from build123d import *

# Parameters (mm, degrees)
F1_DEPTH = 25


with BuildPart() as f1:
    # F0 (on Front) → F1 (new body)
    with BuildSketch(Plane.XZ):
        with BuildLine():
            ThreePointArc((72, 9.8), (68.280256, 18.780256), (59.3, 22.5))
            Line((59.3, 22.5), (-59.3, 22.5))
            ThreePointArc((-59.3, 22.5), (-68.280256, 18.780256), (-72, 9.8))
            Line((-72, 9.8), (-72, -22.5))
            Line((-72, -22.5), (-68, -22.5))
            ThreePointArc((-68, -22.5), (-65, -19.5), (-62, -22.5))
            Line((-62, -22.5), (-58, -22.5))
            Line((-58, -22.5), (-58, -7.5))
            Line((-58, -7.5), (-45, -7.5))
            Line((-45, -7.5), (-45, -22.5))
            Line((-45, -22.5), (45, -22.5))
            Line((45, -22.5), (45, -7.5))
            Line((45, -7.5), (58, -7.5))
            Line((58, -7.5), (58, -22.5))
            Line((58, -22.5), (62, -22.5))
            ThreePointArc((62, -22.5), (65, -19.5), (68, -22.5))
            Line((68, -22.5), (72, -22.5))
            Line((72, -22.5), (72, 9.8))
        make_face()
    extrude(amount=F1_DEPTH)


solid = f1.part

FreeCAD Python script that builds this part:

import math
import FreeCAD as App
import Part
import Sketcher

V = App.Vector
Q = App.Units.Quantity

doc = App.newDocument("Part")
body = doc.addObject("PartDesign::Body", "Body")

# Sketch on XZ plane
sketch1 = doc.addObject("Sketcher::SketchObject", "Sketch")
body.addObject(sketch1)
sketch1.AttachmentSupport = (doc.XZ_Plane, [""])
sketch1.MapMode = "FlatFace"
sketch1.addGeometry([
    Part.ArcOfCircle(Part.Circle(V(59.3, 9.8, 0), V(0, 0, 1), 12.7), math.radians(0.000002), math.radians(89.999998)),  # 0
    Part.LineSegment(V(59.3, 22.5, 0), V(-59.3, 22.5, 0)),  # 1
    Part.ArcOfCircle(Part.Circle(V(-59.3, 9.8, 0), V(0, 0, 1), 12.7), math.radians(90.000002), math.radians(179.999998)),  # 2
    Part.LineSegment(V(-72, 9.8, 0), V(-72, -22.5, 0)),  # 3
    Part.LineSegment(V(-72, -22.5, 0), V(-68, -22.5, 0)),  # 4
    Part.ArcOfCircle(Part.Circle(V(-65, -22.5, 0), V(0, 0, 1), 3), math.radians(0), math.radians(180)),  # 5
    Part.LineSegment(V(-62, -22.5, 0), V(-58, -22.5, 0)),  # 6
    Part.LineSegment(V(-58, -22.5, 0), V(-58, -7.5, 0)),  # 7
    Part.LineSegment(V(-58, -7.5, 0), V(-45, -7.5, 0)),  # 8
    Part.LineSegment(V(-45, -7.5, 0), V(-45, -22.5, 0)),  # 9
    Part.LineSegment(V(-45, -22.5, 0), V(45, -22.5, 0)),  # 10
    Part.LineSegment(V(45, -22.5, 0), V(45, -7.5, 0)),  # 11
    Part.LineSegment(V(45, -7.5, 0), V(58, -7.5, 0)),  # 12
    Part.LineSegment(V(58, -7.5, 0), V(58, -22.5, 0)),  # 13
    Part.LineSegment(V(58, -22.5, 0), V(62, -22.5, 0)),  # 14
    Part.ArcOfCircle(Part.Circle(V(65, -22.5, 0), V(0, 0, 1), 3), math.radians(0), math.radians(180)),  # 15
    Part.LineSegment(V(68, -22.5, 0), V(72, -22.5, 0)),  # 16
    Part.LineSegment(V(72, -22.5, 0), V(72, 9.8, 0)),  # 17
], False)
sketch1.addConstraint([
    Sketcher.Constraint("Tangent", 0, 2, 1, 1),
    Sketcher.Constraint("Tangent", 1, 2, 2, 1),
    Sketcher.Constraint("Tangent", 2, 2, 3, 1),
    Sketcher.Constraint("Coincident", 3, 2, 4, 1),
    Sketcher.Constraint("Coincident", 4, 2, 5, 2),
    Sketcher.Constraint("Coincident", 5, 1, 6, 1),
    Sketcher.Constraint("Coincident", 6, 2, 7, 1),
    Sketcher.Constraint("Coincident", 7, 2, 8, 1),
    Sketcher.Constraint("Coincident", 8, 2, 9, 1),
    Sketcher.Constraint("Coincident", 9, 2, 10, 1),
    Sketcher.Constraint("Coincident", 10, 2, 11, 1),
    Sketcher.Constraint("Coincident", 11, 2, 12, 1),
    Sketcher.Constraint("Coincident", 12, 2, 13, 1),
    Sketcher.Constraint("Coincident", 13, 2, 14, 1),
    Sketcher.Constraint("Coincident", 14, 2, 15, 2),
    Sketcher.Constraint("Coincident", 15, 1, 16, 1),
    Sketcher.Constraint("Coincident", 16, 2, 17, 1),
    Sketcher.Constraint("Tangent", 17, 2, 0, 1),
    Sketcher.Constraint("Horizontal", 1),
    Sketcher.Constraint("Vertical", 3),
    Sketcher.Constraint("Horizontal", 4),
    Sketcher.Constraint("Horizontal", 6),
    Sketcher.Constraint("Vertical", 7),
    Sketcher.Constraint("Horizontal", 8),
    Sketcher.Constraint("Vertical", 9),
    Sketcher.Constraint("Horizontal", 10),
    Sketcher.Constraint("Vertical", 11),
    Sketcher.Constraint("Horizontal", 12),
    Sketcher.Constraint("Vertical", 13),
    Sketcher.Constraint("Horizontal", 14),
    Sketcher.Constraint("Horizontal", 16),
    Sketcher.Constraint("Vertical", 17),
    Sketcher.Constraint("Equal", 0, 2),
    Sketcher.Constraint("Equal", 5, 15),
    Sketcher.Constraint("Symmetric", 5, 3, 15, 3, -2),
    Sketcher.Constraint("Symmetric", 8, 2, 11, 2, -2),
    Sketcher.Constraint("Symmetric", 6, 2, 13, 2, -2),
    Sketcher.Constraint("Symmetric", 3, 2, 16, 2, -2),
    Sketcher.Constraint("Horizontal", 15, 3, 3, 2),
    Sketcher.Constraint("Horizontal", 4, 2, 5, 1),
    Sketcher.Constraint("Horizontal", 6, 2, 9, 2),
    Sketcher.Constraint("Equal", 4, 6),
    Sketcher.Constraint("Radius", 5, Q("3 mm")),
    Sketcher.Constraint("Radius", 0, Q("12.7 mm")),
    Sketcher.Constraint("DistanceX", 4, 1, 4, 2, Q("4 mm")),
    Sketcher.Constraint("DistanceX", 8, 1, 8, 2, Q("13 mm")),
    Sketcher.Constraint("DistanceX", 10, 1, 10, 2, Q("90 mm")),
    Sketcher.Constraint("DistanceY", 7, 1, 7, 2, Q("15 mm")),
    Sketcher.Constraint("DistanceY", 3, 2, 3, 1, Q("32.3 mm")),
    Sketcher.Constraint("DistanceY", -1, 1, 0, 3, Q("9.8 mm")),
])
pad1 = doc.addObject("PartDesign::Pad", "Pad")
body.addObject(pad1)
pad1.Profile = sketch1
pad1.Length = 25

doc.recompute()
